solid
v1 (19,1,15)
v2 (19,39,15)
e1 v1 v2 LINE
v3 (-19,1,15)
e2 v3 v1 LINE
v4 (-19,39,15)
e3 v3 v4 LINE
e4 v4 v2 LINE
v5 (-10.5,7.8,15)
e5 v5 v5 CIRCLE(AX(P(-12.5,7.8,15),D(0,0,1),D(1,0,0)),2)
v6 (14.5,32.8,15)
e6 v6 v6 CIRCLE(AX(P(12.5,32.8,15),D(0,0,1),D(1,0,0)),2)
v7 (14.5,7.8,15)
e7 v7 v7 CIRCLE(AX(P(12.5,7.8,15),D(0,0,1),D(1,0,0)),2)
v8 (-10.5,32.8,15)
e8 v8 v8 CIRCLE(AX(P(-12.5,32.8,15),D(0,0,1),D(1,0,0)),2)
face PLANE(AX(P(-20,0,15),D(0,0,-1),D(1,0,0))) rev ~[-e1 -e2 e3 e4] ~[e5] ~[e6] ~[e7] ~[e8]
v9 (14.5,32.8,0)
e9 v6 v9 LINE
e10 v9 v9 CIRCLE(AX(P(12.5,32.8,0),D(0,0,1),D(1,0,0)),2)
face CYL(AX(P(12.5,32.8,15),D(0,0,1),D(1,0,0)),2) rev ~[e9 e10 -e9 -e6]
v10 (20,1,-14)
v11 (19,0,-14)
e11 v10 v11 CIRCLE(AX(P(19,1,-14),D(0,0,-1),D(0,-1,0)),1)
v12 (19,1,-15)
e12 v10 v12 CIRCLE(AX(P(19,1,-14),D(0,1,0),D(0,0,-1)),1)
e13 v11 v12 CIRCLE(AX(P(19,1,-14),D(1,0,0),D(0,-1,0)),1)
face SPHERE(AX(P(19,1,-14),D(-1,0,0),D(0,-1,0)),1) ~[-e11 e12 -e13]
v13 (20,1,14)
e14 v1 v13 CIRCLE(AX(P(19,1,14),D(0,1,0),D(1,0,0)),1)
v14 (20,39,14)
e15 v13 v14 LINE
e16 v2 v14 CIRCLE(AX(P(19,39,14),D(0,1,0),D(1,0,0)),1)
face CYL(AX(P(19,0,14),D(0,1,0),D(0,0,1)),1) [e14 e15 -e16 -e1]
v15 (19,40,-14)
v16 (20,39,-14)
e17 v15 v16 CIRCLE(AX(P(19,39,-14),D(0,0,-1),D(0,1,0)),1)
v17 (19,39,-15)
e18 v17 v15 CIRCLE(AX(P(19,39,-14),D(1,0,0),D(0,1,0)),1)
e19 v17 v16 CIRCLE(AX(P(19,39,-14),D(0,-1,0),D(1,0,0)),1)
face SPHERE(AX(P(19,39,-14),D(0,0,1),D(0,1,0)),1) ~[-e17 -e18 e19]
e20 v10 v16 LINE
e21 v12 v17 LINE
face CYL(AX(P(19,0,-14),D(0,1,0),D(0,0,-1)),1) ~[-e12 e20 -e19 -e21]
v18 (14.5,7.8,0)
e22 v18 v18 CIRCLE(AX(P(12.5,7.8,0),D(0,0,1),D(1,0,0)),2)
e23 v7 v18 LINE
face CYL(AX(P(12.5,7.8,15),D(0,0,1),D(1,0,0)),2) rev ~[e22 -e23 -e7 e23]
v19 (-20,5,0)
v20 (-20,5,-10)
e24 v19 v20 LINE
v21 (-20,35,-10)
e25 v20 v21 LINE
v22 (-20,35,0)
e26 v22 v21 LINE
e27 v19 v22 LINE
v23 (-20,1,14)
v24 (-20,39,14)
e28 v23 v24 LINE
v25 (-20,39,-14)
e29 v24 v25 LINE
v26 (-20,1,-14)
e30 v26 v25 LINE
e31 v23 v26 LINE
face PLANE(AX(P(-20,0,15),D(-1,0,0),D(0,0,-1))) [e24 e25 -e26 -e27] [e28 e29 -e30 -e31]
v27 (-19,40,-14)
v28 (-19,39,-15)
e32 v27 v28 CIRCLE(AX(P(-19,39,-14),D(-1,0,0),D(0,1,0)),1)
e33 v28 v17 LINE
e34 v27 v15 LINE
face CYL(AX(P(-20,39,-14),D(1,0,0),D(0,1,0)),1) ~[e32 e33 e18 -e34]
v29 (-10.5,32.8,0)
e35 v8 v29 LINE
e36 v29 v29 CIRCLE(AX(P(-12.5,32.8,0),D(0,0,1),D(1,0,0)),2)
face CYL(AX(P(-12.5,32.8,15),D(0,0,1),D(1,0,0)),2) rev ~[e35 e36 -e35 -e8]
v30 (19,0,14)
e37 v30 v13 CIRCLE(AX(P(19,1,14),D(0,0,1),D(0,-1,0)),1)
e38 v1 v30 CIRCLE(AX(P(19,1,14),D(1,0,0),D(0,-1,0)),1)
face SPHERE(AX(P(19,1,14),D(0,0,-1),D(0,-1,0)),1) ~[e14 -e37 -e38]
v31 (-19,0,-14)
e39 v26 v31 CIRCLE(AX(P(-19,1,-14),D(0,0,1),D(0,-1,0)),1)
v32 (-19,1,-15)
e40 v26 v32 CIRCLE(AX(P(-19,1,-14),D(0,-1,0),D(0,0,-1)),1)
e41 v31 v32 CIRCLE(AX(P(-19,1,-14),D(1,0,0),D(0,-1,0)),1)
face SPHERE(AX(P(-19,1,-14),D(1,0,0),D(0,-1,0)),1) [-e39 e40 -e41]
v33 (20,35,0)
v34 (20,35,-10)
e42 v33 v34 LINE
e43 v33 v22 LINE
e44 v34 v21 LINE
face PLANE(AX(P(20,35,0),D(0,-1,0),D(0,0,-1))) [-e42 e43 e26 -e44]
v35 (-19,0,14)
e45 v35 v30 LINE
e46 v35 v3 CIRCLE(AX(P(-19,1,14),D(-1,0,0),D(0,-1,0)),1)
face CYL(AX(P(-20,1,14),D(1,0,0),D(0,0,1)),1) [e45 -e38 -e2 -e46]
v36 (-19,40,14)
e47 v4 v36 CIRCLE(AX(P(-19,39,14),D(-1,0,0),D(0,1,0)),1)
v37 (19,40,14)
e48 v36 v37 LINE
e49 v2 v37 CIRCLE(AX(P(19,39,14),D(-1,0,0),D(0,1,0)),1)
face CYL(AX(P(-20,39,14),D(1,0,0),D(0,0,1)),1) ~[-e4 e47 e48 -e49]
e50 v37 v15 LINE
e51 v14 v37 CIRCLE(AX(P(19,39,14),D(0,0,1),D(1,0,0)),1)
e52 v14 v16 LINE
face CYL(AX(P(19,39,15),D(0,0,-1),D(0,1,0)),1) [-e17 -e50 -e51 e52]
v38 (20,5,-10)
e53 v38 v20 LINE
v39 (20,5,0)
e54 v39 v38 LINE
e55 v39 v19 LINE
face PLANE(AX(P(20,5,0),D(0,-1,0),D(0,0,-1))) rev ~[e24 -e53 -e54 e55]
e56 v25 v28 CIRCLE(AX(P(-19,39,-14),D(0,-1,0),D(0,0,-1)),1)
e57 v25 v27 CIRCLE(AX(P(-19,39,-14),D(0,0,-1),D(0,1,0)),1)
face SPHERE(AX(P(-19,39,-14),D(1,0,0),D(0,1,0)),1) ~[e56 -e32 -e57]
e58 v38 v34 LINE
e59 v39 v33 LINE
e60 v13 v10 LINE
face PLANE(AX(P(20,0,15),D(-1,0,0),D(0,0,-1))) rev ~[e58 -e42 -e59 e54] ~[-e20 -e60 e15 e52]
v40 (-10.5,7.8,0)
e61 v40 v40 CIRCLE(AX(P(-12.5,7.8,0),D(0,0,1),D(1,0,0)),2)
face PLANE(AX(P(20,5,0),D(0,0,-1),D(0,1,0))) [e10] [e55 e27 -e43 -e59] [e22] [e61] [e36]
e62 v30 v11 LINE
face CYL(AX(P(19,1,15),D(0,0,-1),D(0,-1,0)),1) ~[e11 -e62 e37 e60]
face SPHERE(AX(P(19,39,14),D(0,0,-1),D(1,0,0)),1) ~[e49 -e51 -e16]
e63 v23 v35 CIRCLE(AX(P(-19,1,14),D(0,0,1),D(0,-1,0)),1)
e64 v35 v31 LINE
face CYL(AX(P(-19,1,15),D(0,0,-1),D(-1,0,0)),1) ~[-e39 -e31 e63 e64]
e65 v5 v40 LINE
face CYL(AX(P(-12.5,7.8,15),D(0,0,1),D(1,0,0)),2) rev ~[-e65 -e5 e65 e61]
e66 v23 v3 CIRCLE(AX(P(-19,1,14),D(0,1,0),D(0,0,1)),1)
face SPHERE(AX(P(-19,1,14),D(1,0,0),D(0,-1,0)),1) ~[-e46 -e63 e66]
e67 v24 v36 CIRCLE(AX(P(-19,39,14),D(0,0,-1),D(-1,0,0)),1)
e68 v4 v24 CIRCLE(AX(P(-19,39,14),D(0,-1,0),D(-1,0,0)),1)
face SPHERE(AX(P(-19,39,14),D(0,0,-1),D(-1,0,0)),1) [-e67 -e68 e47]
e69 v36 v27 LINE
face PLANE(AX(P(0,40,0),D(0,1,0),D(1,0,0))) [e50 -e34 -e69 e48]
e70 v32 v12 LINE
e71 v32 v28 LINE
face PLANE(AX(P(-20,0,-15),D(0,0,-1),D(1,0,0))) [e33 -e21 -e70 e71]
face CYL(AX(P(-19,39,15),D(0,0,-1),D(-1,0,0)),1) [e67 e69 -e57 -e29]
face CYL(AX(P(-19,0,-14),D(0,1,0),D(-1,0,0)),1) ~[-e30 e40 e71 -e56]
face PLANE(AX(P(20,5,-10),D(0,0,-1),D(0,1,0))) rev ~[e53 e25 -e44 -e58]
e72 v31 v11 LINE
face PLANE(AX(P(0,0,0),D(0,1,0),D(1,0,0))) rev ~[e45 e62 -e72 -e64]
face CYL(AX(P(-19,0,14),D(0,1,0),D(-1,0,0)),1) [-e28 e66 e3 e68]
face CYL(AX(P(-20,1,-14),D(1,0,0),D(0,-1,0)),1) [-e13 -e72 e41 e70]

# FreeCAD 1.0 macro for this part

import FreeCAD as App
import Part
import Sketcher

V = App.Vector
Q = App.Units.Quantity


def edges_at(feature, points):
    """Names of the edges that pass closest to the given points."""
    edges = feature.Shape.Edges
    near = lambda p: min(range(len(edges)), key=lambda i: edges[i].distToShape(Part.Vertex(*p))[0])
    return sorted({f"Edge{near(p) + 1}" for p in points})


def add_polygon(sketch, points):
    """Adds a closed chain of lines whose ends are joined by coincident constraints."""
    first, n = sketch.GeometryCount, len(points)
    for a, b in zip(points, points[1:] + points[:1]):
        sketch.addGeometry(Part.LineSegment(App.Vector(*a, 0), App.Vector(*b, 0)), False)
    for i in range(n):
        sketch.addConstraint(Sketcher.Constraint("Coincident", first + i, 2, first + (i + 1) % n, 1))

doc = App.newDocument("Part")
params = doc.addObject("Spreadsheet::Sheet", "Params")
for row, (alias, value) in enumerate([
    ("sketch1_width", "40 mm"),
    ("sketch1_height", "30 mm"),
    ("pad1_length", "40 mm"),
    ("sketch2_width", "30 mm"),
    ("sketch2_height", "10 mm"),
    ("pocket1_length", "40 mm"),
    ("sketch3_diameter", "4 mm"),
    ("sketch4_diameter", "4 mm"),
    ("sketch5_diameter", "4 mm"),
    ("sketch6_diameter", "4 mm"),
    ("fillet_radius", "1 mm"),
], start=1):
    params.set(f"A{row}", alias)
    params.set(f"B{row}", "=" + value)
    params.setAlias(f"B{row}", alias)

body = doc.addObject("PartDesign::Body", "Body")

# Sketch on XZ plane
sketch1 = body.newObject("Sketcher::SketchObject", "Sketch")
sketch1.AttachmentSupport = (doc.getObject("XZ_Plane"), [""])
sketch1.MapMode = "FlatFace"
add_polygon(sketch1, [(-20, -15), (-20, 15), (20, 15), (20, -15)])  # lines 0-3
sketch1.addConstraint([
    Sketcher.Constraint("Vertical", 0),
    Sketcher.Constraint("Horizontal", 1),
    Sketcher.Constraint("Vertical", 2),
    Sketcher.Constraint("Horizontal", 3),
    Sketcher.Constraint("Symmetric", 0, 2, 2, 2, -1, 1),
    Sketcher.Constraint("DistanceX", 1, 1, 1, 2, Q("40 mm")),
    Sketcher.Constraint("DistanceY", 0, 1, 0, 2, Q("30 mm")),
])
sketch1.setExpression("Constraints[9]", "Params.sketch1_width")
sketch1.setExpression("Constraints[10]", "Params.sketch1_height")
pad1 = body.newObject("PartDesign::Pad", "Pad")
pad1.Profile = sketch1
pad1.setExpression("Length", "Params.pad1_length")
pad1.Reversed = True

# Sketch on YZ plane
sketch2 = body.newObject("Sketcher::SketchObject", "Sketch001")
sketch2.AttachmentSupport = (doc.getObject("YZ_Plane"), [""])
sketch2.MapMode = "FlatFace"
sketch2.AttachmentOffset = App.Placement(V(0, 0, 20), App.Rotation())
add_polygon(sketch2, [(35, 0), (5, 0), (5, -10), (35, -10)])  # lines 0-3
sketch2.addConstraint([
    Sketcher.Constraint("Horizontal", 0),
    Sketcher.Constraint("Vertical", 1),
    Sketcher.Constraint("Horizontal", 2),
    Sketcher.Constraint("Vertical", 3),
    Sketcher.Constraint("PointOnObject", 0, 2, -1),
    Sketcher.Constraint("DistanceX", 0, 2, 0, 1, Q("30 mm")),
    Sketcher.Constraint("DistanceY", 1, 2, 1, 1, Q("10 mm")),
    Sketcher.Constraint("DistanceX", -1, 1, 0, 2, Q("5 mm")),
])
sketch2.setExpression("Constraints[9]", "Params.sketch2_width")
sketch2.setExpression("Constraints[10]", "Params.sketch2_height")
pocket1 = body.newObject("PartDesign::Pocket", "Pocket")
pocket1.Profile = sketch2
pocket1.setExpression("Length", "Params.pocket1_length")

# Sketch on XY plane
sketch3 = body.newObject("Sketcher::SketchObject", "Sketch002")
sketch3.AttachmentSupport = (doc.getObject("XY_Plane"), [""])
sketch3.MapMode = "FlatFace"
sketch3.AttachmentOffset = App.Placement(V(0, 0, 15), App.Rotation())
sketch3.addGeometry(Part.Circle(V(12.5, 7.8, 0), V(0, 0, 1), 2), False)
sketch3.addConstraint([
    Sketcher.Constraint("Diameter", 0, Q("4 mm")),
    Sketcher.Constraint("DistanceX", -1, 1, 0, 3, Q("12.5 mm")),
    Sketcher.Constraint("DistanceY", -1, 1, 0, 3, Q("7.8 mm")),
])
sketch3.setExpression("Constraints[0]", "Params.sketch3_diameter")
pocket2 = body.newObject("PartDesign::Pocket", "Pocket001")
pocket2.Profile = sketch3
pocket2.Type = "UpToFirst"

# Sketch on XY plane
sketch4 = body.newObject("Sketcher::SketchObject", "Sketch003")
sketch4.AttachmentSupport = (doc.getObject("XY_Plane"), [""])
sketch4.MapMode = "FlatFace"
sketch4.AttachmentOffset = App.Placement(V(0, 0, 15), App.Rotation())
sketch4.addGeometry(Part.Circle(V(12.5, 32.8, 0), V(0, 0, 1), 2), False)
sketch4.addConstraint([
    Sketcher.Constraint("Diameter", 0, Q("4 mm")),
    Sketcher.Constraint("DistanceX", -1, 1, 0, 3, Q("12.5 mm")),
    Sketcher.Constraint("DistanceY", -1, 1, 0, 3, Q("32.8 mm")),
])
sketch4.setExpression("Constraints[0]", "Params.sketch4_diameter")
pocket3 = body.newObject("PartDesign::Pocket", "Pocket002")
pocket3.Profile = sketch4
pocket3.Type = "UpToFirst"

# Sketch on XY plane
sketch5 = body.newObject("Sketcher::SketchObject", "Sketch004")
sketch5.AttachmentSupport = (doc.getObject("XY_Plane"), [""])
sketch5.MapMode = "FlatFace"
sketch5.AttachmentOffset = App.Placement(V(0, 0, 15), App.Rotation())
sketch5.addGeometry(Part.Circle(V(-12.5, 32.8, 0), V(0, 0, 1), 2), False)
sketch5.addConstraint([
    Sketcher.Constraint("Diameter", 0, Q("4 mm")),
    Sketcher.Constraint("DistanceX", 0, 3, -1, 1, Q("12.5 mm")),
    Sketcher.Constraint("DistanceY", -1, 1, 0, 3, Q("32.8 mm")),
])
sketch5.setExpression("Constraints[0]", "Params.sketch5_diameter")
pocket4 = body.newObject("PartDesign::Pocket", "Pocket003")
pocket4.Profile = sketch5
pocket4.Type = "UpToFirst"

# Sketch on XY plane
sketch6 = body.newObject("Sketcher::SketchObject", "Sketch005")
sketch6.AttachmentSupport = (doc.getObject("XY_Plane"), [""])
sketch6.MapMode = "FlatFace"
sketch6.AttachmentOffset = App.Placement(V(0, 0, 15), App.Rotation())
sketch6.addGeometry(Part.Circle(V(-12.5, 7.8, 0), V(0, 0, 1), 2), False)
sketch6.addConstraint([
    Sketcher.Constraint("Diameter", 0, Q("4 mm")),
    Sketcher.Constraint("DistanceX", 0, 3, -1, 1, Q("12.5 mm")),
    Sketcher.Constraint("DistanceY", -1, 1, 0, 3, Q("7.8 mm")),
])
sketch6.setExpression("Constraints[0]", "Params.sketch6_diameter")
pocket5 = body.newObject("PartDesign::Pocket", "Pocket004")
pocket5.Profile = sketch6
pocket5.Type = "UpToFirst"
doc.recompute()

fillet = body.newObject("PartDesign::Fillet", "Fillet")
fillet.Base = (pocket5, edges_at(pocket5, [
    (20, 40, 0),
    (0, 40, -15),
    (-20, 40, 0),
    (0, 0, -15),
    (20, 0, 0),
    (0, 0, 15),
    (-20, 0, 0),
    (-20, 20, -15),
    (20, 20, -15),
    (20, 20, 15),
    (-20, 20, 15),
    (0, 40, 15),
]))
fillet.setExpression("Radius", "Params.fillet_radius")

doc.recompute()
